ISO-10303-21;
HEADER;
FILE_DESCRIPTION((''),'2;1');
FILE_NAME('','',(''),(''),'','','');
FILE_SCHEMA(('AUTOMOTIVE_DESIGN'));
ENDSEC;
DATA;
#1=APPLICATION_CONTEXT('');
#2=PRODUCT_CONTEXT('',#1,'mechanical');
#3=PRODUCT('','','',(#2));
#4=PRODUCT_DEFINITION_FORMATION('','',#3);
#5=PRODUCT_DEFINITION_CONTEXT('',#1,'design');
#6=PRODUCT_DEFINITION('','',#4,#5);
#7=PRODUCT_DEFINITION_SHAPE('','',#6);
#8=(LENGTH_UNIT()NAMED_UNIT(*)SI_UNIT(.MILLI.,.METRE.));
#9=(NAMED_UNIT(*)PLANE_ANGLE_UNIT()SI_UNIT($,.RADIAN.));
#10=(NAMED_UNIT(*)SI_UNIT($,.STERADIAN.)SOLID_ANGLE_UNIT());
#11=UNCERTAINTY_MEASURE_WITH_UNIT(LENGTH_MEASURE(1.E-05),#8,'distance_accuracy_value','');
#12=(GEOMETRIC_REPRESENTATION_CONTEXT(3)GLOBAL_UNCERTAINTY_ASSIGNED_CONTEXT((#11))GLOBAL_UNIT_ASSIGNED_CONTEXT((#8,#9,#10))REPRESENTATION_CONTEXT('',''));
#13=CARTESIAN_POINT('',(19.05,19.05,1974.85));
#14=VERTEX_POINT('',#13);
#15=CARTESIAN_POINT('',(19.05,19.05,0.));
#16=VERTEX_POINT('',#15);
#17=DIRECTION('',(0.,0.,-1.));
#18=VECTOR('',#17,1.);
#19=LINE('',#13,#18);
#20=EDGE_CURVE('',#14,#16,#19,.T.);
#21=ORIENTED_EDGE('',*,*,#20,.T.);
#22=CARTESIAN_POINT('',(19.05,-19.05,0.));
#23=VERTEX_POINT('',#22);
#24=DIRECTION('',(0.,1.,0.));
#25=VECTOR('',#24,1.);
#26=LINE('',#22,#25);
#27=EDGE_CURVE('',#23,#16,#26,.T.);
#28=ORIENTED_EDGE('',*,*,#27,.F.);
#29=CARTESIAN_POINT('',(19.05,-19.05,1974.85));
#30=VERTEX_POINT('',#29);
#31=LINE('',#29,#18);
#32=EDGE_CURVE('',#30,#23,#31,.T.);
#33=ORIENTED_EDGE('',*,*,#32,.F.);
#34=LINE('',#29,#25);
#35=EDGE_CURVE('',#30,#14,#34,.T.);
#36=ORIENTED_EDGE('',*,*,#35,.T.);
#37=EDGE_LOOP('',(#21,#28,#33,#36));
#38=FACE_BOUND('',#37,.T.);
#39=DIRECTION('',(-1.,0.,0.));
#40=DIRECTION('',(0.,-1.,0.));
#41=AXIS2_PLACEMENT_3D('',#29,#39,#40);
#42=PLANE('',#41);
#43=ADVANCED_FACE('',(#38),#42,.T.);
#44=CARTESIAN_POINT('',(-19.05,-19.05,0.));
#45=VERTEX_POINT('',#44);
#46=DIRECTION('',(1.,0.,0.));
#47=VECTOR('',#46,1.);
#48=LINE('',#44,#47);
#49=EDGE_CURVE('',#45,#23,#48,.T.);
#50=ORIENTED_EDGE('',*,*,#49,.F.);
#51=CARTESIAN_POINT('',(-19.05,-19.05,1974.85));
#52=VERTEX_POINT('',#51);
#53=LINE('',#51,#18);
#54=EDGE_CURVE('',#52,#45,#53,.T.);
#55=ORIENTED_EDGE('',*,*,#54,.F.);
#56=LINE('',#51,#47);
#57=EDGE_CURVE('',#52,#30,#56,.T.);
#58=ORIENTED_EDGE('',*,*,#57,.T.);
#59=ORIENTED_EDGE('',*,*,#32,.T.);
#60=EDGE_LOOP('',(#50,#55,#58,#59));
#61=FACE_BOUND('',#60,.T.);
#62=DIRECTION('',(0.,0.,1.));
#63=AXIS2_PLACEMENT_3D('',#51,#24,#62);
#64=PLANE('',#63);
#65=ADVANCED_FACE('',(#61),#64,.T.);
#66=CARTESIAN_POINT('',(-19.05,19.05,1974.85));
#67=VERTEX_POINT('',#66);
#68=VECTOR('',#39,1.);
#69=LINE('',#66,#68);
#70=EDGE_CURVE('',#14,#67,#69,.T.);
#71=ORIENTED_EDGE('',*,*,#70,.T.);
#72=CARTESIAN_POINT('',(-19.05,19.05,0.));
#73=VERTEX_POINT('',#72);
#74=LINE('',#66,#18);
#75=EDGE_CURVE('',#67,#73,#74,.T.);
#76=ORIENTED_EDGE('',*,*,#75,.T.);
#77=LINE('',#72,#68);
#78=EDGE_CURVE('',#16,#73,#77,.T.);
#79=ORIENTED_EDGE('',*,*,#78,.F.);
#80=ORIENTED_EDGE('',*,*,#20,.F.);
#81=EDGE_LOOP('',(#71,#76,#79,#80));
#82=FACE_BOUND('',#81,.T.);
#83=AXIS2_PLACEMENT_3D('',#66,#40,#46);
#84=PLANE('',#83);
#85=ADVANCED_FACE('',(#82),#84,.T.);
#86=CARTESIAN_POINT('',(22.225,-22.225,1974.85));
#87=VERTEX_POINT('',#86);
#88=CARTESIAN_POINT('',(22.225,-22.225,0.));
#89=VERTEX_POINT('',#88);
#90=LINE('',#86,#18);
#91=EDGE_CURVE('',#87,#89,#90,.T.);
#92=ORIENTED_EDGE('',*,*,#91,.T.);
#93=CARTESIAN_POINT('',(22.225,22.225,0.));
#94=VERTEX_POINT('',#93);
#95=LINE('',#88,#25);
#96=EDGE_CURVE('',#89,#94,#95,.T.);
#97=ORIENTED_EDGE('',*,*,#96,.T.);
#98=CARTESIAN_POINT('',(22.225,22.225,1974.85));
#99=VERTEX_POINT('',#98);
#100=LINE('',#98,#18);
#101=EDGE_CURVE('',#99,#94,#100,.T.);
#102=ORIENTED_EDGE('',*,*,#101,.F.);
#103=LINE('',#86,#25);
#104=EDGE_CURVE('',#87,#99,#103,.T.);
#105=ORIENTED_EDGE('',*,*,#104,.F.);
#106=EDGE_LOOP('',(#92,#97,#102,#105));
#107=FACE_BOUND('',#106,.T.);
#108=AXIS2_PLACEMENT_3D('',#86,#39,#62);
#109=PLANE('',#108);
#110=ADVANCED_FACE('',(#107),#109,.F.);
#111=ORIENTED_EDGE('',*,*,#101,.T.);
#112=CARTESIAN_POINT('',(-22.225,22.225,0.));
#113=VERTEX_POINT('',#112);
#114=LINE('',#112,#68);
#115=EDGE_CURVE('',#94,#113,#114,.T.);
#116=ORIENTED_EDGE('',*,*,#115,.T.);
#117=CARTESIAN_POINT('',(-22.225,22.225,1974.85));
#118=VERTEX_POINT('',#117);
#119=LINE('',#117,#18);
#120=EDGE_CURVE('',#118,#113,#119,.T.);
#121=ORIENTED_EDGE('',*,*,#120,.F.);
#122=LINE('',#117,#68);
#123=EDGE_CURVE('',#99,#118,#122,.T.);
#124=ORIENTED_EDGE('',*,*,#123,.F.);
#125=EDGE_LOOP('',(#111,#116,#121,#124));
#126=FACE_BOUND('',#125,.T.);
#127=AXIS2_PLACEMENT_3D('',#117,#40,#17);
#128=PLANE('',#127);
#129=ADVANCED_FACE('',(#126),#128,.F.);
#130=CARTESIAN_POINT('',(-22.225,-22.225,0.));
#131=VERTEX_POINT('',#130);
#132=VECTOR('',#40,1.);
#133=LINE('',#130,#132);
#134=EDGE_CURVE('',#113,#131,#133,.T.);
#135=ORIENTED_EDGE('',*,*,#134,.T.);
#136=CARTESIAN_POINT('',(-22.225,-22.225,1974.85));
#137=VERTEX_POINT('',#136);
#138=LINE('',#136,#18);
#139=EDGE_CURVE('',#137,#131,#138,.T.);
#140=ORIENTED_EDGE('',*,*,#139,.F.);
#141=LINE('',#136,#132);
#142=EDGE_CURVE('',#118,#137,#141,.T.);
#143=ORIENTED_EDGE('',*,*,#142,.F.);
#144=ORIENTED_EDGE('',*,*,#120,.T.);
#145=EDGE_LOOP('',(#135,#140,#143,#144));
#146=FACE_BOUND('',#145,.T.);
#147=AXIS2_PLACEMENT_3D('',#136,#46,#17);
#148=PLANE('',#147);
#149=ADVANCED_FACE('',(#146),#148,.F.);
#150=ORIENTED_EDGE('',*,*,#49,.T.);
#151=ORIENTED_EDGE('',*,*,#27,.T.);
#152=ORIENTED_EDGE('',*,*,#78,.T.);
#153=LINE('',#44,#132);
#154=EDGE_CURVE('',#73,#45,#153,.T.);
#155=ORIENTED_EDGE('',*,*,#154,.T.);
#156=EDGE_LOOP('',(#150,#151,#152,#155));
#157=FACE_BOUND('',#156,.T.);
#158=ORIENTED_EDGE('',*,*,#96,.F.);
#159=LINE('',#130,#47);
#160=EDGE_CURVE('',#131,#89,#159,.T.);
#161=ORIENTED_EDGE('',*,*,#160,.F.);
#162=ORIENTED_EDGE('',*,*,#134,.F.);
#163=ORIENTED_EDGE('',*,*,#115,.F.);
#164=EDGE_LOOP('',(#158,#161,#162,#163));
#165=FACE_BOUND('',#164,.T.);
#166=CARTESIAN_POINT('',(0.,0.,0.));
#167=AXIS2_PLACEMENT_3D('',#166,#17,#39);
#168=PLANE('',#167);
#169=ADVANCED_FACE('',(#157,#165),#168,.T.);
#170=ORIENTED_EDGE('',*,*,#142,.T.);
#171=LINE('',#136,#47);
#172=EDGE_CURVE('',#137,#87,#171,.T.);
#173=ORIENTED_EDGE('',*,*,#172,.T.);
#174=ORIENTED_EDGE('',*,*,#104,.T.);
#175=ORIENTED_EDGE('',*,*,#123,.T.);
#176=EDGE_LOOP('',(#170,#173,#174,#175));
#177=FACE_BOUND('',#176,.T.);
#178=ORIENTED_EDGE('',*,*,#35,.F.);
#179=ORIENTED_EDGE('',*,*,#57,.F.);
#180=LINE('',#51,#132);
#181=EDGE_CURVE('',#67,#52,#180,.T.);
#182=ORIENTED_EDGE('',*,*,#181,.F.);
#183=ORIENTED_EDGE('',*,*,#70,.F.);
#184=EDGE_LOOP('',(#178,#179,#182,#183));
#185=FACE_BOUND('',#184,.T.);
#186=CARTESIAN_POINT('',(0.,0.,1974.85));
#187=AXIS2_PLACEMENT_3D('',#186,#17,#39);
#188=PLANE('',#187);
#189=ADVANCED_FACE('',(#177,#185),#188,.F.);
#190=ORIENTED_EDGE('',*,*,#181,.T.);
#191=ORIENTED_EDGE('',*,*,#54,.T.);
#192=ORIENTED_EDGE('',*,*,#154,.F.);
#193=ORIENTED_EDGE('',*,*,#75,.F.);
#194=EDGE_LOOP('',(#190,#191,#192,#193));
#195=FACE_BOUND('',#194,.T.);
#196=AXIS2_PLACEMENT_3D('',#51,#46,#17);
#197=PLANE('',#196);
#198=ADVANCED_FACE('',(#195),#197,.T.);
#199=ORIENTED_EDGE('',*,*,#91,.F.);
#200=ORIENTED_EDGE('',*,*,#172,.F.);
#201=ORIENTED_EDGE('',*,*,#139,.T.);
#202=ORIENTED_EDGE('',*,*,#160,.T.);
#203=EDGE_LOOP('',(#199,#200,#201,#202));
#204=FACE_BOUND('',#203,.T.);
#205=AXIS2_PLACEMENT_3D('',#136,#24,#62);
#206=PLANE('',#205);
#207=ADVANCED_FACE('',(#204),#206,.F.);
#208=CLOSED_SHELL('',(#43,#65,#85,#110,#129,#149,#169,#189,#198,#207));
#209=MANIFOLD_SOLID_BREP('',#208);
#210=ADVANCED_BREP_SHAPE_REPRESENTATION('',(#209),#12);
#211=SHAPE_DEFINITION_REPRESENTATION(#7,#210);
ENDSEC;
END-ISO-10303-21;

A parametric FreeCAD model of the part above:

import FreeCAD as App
import Part
import Sketcher

V = App.Vector
Q = App.Units.Quantity

doc = App.newDocument("Part")
body = doc.addObject("PartDesign::Body", "Body")

# Sketch on XY plane
sketch1 = body.newObject("Sketcher::SketchObject", "Sketch")
sketch1.AttachmentSupport = (doc.getObject("XY_Plane"), [""])
sketch1.MapMode = "FlatFace"
sketch1.addGeometry([
    Part.LineSegment(V(-22.225, 22.225, 0), V(-22.225, -22.225, 0)),  # 0
    Part.LineSegment(V(-22.225, -22.225, 0), V(22.225, -22.225, 0)),  # 1
    Part.LineSegment(V(22.225, -22.225, 0), V(22.225, 22.225, 0)),  # 2
    Part.LineSegment(V(22.225, 22.225, 0), V(-22.225, 22.225, 0)),  # 3
    Part.LineSegment(V(19.05, -19.05, 0), V(-19.05, -19.05, 0)),  # 4
    Part.LineSegment(V(-19.05, -19.05, 0), V(-19.05, 19.05, 0)),  # 5
    Part.LineSegment(V(-19.05, 19.05, 0), V(19.05, 19.05, 0)),  # 6
    Part.LineSegment(V(19.05, 19.05, 0), V(19.05, -19.05, 0)),  # 7
], False)
sketch1.addConstraint([
    Sketcher.Constraint("Coincident", 0, 2, 1, 1),
    Sketcher.Constraint("Coincident", 1, 2, 2, 1),
    Sketcher.Constraint("Coincident", 2, 2, 3, 1),
    Sketcher.Constraint("Coincident", 3, 2, 0, 1),
    Sketcher.Constraint("Coincident", 4, 2, 5, 1),
    Sketcher.Constraint("Coincident", 5, 2, 6, 1),
    Sketcher.Constraint("Coincident", 6, 2, 7, 1),
    Sketcher.Constraint("Coincident", 7, 2, 4, 1),
    Sketcher.Constraint("Vertical", 0),
    Sketcher.Constraint("Horizontal", 1),
    Sketcher.Constraint("Vertical", 2),
    Sketcher.Constraint("Horizontal", 3),
    Sketcher.Constraint("Horizontal", 4),
    Sketcher.Constraint("Vertical", 5),
    Sketcher.Constraint("Horizontal", 6),
    Sketcher.Constraint("Vertical", 7),
    Sketcher.Constraint("Symmetric", 0, 2, 2, 2, -1, 1),
    Sketcher.Constraint("Symmetric", 4, 2, 6, 2, -1, 1),
    Sketcher.Constraint("Equal", 3, 0),
    Sketcher.Constraint("Equal", 6, 5),
    Sketcher.Constraint("DistanceX", 4, 2, 4, 1, Q("1.5 in")),
    Sketcher.Constraint("DistanceX", 1, 1, 1, 2, Q("1.75 in")),
])
pad1 = body.newObject("PartDesign::Pad", "Pad")
pad1.Profile = sketch1
pad1.Length = Q("77.75 in")

doc.recompute()
